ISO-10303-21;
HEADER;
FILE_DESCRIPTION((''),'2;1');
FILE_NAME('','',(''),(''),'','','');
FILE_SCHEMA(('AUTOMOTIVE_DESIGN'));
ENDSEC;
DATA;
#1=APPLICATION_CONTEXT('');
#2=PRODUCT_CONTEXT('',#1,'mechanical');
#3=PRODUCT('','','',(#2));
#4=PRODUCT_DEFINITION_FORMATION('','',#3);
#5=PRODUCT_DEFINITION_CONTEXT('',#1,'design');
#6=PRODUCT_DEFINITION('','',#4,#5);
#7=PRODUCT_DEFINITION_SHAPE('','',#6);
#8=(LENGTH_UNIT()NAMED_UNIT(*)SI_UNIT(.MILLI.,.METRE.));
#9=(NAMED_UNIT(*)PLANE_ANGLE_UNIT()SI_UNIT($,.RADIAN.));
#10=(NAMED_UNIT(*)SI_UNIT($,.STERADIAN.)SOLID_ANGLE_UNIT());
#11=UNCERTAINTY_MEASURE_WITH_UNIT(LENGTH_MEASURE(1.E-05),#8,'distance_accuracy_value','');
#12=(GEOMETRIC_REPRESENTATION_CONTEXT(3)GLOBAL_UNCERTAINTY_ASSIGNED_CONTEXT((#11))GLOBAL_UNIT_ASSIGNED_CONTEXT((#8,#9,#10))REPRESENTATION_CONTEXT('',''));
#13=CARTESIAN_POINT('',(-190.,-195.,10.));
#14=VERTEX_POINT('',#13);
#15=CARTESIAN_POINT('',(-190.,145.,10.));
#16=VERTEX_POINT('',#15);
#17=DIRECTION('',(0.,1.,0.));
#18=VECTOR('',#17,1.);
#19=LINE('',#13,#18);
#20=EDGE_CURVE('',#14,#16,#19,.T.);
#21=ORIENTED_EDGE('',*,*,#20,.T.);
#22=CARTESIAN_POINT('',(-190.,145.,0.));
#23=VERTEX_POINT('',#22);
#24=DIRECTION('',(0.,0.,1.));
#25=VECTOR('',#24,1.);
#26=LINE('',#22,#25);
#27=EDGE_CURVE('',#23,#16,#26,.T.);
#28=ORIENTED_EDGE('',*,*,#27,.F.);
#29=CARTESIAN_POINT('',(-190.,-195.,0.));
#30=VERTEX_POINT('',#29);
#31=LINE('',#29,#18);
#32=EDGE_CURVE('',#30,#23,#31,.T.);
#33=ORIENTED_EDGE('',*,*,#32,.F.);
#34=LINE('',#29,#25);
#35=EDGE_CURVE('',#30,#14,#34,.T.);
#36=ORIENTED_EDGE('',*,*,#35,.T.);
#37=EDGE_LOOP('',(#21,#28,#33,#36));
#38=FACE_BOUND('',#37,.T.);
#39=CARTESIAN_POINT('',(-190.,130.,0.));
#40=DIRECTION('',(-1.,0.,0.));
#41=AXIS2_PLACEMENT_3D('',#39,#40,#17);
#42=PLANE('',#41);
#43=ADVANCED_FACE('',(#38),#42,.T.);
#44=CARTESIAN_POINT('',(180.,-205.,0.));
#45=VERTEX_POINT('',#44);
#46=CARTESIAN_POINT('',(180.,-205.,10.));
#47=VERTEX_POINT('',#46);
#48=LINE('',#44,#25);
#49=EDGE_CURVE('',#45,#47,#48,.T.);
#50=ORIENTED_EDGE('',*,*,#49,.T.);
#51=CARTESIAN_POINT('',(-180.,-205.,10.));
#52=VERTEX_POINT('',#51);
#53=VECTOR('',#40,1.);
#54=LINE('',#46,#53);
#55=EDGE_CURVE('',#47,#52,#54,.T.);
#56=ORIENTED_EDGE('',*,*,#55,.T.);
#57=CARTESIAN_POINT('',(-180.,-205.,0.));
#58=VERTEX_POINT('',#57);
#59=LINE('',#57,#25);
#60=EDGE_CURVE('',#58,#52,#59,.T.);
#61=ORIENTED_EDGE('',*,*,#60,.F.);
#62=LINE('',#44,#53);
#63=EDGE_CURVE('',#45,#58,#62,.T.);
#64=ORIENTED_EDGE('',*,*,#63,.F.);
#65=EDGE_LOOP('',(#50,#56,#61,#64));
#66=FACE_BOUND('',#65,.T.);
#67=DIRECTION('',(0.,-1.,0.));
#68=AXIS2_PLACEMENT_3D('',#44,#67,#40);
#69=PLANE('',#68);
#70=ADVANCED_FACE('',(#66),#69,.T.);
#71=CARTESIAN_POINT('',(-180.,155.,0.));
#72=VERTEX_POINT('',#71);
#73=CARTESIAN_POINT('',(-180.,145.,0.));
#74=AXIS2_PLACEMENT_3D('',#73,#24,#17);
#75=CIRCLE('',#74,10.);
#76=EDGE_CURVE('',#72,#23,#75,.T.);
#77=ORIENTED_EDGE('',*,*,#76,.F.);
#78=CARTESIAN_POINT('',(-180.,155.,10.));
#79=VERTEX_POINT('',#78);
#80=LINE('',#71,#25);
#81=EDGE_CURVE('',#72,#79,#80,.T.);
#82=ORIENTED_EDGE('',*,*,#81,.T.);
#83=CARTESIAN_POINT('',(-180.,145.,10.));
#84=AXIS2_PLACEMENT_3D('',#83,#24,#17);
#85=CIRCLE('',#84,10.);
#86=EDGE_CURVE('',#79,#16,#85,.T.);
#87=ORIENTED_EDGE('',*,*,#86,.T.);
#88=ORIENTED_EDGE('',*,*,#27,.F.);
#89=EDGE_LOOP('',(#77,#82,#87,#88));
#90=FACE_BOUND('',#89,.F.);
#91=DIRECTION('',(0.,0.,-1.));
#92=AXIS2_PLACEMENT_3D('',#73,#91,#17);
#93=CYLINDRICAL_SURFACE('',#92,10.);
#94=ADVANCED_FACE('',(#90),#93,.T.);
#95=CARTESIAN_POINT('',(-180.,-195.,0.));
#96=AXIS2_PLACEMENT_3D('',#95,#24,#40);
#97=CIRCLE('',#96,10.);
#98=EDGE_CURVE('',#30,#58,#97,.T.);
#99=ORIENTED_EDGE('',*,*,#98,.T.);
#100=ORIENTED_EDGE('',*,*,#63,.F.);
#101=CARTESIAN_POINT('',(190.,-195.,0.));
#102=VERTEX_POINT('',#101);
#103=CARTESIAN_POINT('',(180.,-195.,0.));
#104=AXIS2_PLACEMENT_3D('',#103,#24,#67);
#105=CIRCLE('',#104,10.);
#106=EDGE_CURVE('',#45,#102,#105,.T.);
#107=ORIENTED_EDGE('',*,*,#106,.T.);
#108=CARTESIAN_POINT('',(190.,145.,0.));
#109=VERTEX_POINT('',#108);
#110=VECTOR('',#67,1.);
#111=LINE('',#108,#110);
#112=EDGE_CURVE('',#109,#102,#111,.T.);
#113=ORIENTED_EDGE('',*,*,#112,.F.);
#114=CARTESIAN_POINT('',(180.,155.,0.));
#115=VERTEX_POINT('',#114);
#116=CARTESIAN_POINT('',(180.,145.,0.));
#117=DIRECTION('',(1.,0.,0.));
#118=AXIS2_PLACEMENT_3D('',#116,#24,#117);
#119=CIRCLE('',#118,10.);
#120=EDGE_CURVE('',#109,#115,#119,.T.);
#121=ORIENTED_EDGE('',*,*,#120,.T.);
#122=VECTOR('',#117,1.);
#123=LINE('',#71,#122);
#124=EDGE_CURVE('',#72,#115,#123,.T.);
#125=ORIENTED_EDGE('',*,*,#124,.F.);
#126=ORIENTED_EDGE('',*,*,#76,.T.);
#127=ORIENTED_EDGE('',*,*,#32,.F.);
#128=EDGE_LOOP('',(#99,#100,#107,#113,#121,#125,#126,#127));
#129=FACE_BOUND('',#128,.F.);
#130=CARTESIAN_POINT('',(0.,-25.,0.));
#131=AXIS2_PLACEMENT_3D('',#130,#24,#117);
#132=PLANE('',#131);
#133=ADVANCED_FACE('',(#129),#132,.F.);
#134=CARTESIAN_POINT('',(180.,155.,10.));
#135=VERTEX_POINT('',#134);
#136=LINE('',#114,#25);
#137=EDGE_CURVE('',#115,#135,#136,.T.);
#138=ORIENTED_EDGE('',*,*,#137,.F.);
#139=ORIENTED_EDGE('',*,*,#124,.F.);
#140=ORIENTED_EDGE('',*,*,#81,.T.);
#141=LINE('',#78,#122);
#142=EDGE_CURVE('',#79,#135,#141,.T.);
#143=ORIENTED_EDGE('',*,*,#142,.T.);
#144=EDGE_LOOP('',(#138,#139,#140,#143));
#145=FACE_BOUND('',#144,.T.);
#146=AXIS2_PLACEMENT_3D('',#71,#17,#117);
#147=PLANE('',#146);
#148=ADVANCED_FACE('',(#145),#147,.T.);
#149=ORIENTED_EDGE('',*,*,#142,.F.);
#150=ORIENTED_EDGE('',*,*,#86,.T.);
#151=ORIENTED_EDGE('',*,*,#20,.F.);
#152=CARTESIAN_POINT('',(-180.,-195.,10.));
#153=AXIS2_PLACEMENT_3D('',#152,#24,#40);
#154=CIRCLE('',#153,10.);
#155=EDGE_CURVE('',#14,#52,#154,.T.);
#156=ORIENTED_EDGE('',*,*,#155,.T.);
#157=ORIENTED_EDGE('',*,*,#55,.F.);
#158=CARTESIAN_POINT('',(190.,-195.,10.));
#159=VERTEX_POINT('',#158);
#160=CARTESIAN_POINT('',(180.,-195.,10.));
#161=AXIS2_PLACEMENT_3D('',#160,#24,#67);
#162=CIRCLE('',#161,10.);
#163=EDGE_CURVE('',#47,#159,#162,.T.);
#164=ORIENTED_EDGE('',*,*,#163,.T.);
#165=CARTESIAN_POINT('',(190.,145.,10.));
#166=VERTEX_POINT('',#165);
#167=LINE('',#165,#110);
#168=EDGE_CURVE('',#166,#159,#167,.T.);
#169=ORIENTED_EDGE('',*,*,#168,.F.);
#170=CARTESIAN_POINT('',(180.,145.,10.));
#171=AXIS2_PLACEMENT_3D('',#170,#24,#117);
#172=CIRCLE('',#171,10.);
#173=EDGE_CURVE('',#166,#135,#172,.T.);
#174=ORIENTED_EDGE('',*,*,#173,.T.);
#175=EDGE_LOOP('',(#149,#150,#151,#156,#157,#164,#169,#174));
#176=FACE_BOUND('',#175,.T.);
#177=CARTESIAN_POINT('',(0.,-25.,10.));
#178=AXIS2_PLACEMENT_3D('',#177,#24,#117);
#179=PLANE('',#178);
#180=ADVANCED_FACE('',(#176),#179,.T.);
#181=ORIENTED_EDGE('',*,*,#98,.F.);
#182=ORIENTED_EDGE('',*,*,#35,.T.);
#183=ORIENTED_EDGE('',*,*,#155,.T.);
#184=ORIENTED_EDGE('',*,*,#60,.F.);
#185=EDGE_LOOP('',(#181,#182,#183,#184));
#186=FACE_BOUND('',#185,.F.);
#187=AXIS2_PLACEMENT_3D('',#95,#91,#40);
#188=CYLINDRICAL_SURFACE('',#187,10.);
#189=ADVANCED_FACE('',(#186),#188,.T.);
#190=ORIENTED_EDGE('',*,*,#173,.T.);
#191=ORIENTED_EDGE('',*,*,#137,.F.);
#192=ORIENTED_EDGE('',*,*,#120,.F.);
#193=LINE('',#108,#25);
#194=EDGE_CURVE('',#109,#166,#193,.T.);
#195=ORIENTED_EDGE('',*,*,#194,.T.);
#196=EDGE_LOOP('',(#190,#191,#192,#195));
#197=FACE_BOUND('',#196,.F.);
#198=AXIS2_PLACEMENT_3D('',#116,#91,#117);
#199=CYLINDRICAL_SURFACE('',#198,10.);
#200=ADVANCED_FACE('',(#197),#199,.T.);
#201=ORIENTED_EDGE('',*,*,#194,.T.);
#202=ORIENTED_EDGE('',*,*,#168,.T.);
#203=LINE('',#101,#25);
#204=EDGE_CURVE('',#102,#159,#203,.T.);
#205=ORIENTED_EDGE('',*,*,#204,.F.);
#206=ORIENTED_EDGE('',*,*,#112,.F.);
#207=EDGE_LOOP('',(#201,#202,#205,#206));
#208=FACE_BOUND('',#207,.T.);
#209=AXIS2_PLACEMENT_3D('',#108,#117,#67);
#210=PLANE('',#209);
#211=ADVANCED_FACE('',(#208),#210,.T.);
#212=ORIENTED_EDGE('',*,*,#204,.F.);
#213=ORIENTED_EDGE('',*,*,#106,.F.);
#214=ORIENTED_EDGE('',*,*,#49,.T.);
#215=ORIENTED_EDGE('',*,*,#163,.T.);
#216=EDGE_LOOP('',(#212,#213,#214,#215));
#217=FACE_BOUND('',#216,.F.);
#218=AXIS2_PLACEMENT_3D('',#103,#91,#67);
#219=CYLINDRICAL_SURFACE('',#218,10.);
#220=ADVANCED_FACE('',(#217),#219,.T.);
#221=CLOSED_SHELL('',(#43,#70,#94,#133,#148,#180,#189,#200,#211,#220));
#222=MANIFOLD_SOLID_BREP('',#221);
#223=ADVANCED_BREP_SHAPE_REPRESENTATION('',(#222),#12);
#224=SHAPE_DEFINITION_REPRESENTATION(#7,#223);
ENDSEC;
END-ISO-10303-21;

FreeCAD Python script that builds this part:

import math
import FreeCAD as App
import Part
import Sketcher

doc = App.newDocument("Part")
body = doc.addObject("PartDesign::Body", "Body")

sketch1 = body.newObject("Sketcher::SketchObject", "Sketch")
sketch1.AttachmentSupport = (doc.getObject("XY_Plane"), [""])
sketch1.MapMode = "FlatFace"
sketch1.addGeometry(Part.LineSegment(App.Vector(-190, 145, 0), App.Vector(-190, -195, 0)), False)
sketch1.addGeometry(Part.ArcOfCircle(Part.Circle(App.Vector(-180, -195, 0), App.Vector(0, 0, 1), 10), math.radians(180), math.radians(270)), False)
sketch1.addGeometry(Part.LineSegment(App.Vector(-180, -205, 0), App.Vector(180, -205, 0)), False)
sketch1.addGeometry(Part.ArcOfCircle(Part.Circle(App.Vector(180, -195, 0), App.Vector(0, 0, 1), 10), math.radians(-90), math.radians(0)), False)
sketch1.addGeometry(Part.LineSegment(App.Vector(190, -195, 0), App.Vector(190, 145, 0)), False)
sketch1.addGeometry(Part.ArcOfCircle(Part.Circle(App.Vector(180, 145, 0), App.Vector(0, 0, 1), 10), math.radians(0), math.radians(90)), False)
sketch1.addGeometry(Part.LineSegment(App.Vector(180, 155, 0), App.Vector(-180, 155, 0)), False)
sketch1.addGeometry(Part.ArcOfCircle(Part.Circle(App.Vector(-180, 145, 0), App.Vector(0, 0, 1), 10), math.radians(90), math.radians(180)), False)
sketch1.addConstraint(Sketcher.Constraint("Tangent", 0, 2, 1, 1))
sketch1.addConstraint(Sketcher.Constraint("Tangent", 1, 2, 2, 1))
sketch1.addConstraint(Sketcher.Constraint("Tangent", 2, 2, 3, 1))
sketch1.addConstraint(Sketcher.Constraint("Tangent", 3, 2, 4, 1))
sketch1.addConstraint(Sketcher.Constraint("Tangent", 4, 2, 5, 1))
sketch1.addConstraint(Sketcher.Constraint("Tangent", 5, 2, 6, 1))
sketch1.addConstraint(Sketcher.Constraint("Tangent", 6, 2, 7, 1))
sketch1.addConstraint(Sketcher.Constraint("Tangent", 7, 2, 0, 1))
sketch1.addConstraint(Sketcher.Constraint("Vertical", 0))
sketch1.addConstraint(Sketcher.Constraint("Horizontal", 2))
sketch1.addConstraint(Sketcher.Constraint("Vertical", 4))
sketch1.addConstraint(Sketcher.Constraint("Horizontal", 6))
sketch1.addConstraint(Sketcher.Constraint("Equal", 1, 3))
sketch1.addConstraint(Sketcher.Constraint("Equal", 3, 5))
sketch1.addConstraint(Sketcher.Constraint("Equal", 5, 7))
sketch1.addConstraint(Sketcher.Constraint("Radius", 1, 10.0))
sketch1.addConstraint(Sketcher.Constraint("DistanceX", 2, 1, 2, 2, 360.0))
sketch1.addConstraint(Sketcher.Constraint("DistanceY", 0, 2, 0, 1, 340.0))
sketch1.addConstraint(Sketcher.Constraint("DistanceX", 1, 3, -1, 1, 180.0))
sketch1.addConstraint(Sketcher.Constraint("DistanceY", 1, 3, -1, 1, 195.0))
pad1 = body.newObject("PartDesign::Pad", "Pad")
pad1.Profile = sketch1
pad1.Length = 10

doc.recompute()
